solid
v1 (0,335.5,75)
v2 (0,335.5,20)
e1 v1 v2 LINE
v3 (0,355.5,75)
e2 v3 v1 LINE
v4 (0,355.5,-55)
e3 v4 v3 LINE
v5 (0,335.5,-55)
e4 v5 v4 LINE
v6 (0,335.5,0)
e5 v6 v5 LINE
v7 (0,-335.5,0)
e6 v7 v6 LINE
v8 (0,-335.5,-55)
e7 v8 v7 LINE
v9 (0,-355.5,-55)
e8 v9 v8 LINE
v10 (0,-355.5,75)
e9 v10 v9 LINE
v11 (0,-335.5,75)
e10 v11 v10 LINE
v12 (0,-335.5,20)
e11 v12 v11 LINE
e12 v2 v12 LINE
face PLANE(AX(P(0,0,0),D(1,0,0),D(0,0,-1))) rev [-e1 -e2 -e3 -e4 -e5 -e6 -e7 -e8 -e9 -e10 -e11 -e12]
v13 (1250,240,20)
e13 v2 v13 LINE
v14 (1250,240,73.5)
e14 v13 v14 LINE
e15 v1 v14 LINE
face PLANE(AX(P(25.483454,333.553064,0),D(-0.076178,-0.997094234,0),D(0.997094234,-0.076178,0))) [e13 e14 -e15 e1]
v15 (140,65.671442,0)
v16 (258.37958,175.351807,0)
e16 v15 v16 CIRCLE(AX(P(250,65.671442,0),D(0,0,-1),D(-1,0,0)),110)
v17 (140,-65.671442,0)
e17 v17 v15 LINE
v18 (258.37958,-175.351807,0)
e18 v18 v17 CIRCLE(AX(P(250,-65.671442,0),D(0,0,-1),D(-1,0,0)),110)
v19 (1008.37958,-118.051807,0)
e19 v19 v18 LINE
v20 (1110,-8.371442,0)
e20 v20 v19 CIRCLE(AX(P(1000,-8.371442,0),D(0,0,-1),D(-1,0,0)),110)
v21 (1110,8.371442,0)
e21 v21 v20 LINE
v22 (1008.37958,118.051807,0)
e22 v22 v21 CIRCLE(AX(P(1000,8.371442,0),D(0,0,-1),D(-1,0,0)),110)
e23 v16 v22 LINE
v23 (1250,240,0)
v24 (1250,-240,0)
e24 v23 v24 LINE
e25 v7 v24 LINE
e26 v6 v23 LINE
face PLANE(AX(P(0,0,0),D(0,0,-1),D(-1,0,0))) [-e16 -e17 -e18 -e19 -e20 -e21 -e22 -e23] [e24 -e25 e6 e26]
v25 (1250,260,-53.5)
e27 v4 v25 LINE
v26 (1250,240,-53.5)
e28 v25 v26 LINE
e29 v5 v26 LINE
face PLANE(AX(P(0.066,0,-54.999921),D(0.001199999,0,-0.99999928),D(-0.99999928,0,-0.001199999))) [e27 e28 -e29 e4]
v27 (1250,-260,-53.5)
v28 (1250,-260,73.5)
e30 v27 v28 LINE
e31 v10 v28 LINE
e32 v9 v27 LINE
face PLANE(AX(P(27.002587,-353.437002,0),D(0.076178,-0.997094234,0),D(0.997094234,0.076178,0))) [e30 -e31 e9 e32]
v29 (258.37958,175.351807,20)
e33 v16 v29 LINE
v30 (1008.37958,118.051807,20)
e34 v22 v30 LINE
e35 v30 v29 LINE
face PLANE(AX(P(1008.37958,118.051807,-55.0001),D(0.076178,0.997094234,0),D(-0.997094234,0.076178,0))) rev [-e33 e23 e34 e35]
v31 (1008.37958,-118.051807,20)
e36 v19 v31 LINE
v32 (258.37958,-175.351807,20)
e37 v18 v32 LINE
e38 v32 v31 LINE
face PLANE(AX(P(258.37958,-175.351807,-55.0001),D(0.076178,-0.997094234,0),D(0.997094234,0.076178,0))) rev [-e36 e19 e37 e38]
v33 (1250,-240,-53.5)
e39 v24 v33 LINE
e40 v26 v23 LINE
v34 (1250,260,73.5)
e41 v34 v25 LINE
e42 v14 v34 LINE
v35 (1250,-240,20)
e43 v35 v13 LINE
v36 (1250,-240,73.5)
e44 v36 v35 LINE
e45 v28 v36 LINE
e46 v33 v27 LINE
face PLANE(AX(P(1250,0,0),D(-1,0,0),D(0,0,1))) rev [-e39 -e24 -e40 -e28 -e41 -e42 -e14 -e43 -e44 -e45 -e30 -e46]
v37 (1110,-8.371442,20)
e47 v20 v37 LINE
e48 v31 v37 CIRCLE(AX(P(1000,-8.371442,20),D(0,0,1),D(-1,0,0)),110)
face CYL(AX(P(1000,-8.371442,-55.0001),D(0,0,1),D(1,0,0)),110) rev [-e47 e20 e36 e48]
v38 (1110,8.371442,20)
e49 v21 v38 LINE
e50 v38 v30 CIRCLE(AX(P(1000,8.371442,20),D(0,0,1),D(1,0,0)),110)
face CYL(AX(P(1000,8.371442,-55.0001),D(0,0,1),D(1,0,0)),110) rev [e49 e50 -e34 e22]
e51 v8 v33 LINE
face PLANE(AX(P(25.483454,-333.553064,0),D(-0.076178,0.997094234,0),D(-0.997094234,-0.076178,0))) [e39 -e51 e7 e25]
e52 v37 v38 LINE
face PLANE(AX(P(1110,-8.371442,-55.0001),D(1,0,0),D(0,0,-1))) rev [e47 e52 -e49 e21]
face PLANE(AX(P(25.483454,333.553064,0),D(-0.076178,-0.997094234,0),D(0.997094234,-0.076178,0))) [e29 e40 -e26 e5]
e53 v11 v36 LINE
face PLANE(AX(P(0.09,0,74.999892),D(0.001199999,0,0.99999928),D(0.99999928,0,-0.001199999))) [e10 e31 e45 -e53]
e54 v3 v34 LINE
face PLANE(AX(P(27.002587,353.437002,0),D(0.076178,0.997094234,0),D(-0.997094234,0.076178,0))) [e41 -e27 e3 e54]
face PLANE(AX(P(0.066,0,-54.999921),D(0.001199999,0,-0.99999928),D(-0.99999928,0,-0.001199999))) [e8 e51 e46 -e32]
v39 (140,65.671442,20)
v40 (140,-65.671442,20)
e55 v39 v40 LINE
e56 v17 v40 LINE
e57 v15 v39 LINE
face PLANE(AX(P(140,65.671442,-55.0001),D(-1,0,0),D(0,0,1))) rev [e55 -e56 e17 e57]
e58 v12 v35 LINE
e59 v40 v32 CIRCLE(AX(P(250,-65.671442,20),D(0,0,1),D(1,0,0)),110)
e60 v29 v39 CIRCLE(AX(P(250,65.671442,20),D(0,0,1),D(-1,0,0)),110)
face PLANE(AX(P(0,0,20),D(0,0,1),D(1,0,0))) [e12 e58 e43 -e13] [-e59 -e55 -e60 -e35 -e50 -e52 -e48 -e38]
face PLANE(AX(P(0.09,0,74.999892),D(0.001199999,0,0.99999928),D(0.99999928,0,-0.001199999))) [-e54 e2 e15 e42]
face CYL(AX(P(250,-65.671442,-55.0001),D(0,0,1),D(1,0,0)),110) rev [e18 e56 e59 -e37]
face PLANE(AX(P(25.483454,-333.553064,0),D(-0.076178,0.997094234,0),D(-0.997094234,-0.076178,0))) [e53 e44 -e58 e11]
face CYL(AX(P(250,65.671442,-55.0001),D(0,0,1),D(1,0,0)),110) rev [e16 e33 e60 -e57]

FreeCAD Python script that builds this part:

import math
import FreeCAD as App
import Part
import Sketcher

V = App.Vector

doc = App.newDocument("Part")
body = doc.addObject("PartDesign::Body", "Body")

sketch1 = body.newObject("Sketcher::SketchObject", "Sketch")
sketch1.AttachmentSupport = (doc.getObject("YZ_Plane"), [""])
sketch1.MapMode = "FlatFace"
sketch1.addGeometry(Part.LineSegment(V(355.5, -55, 0), V(355.5, 75, 0)), False)
sketch1.addGeometry(Part.LineSegment(V(355.5, 75, 0), V(335.5, 75, 0)), False)
sketch1.addGeometry(Part.LineSegment(V(335.5, 75, 0), V(335.5, 20, 0)), False)
sketch1.addGeometry(Part.LineSegment(V(335.5, 20, 0), V(-335.5, 20, 0)), False)
sketch1.addGeometry(Part.LineSegment(V(-335.5, 20, 0), V(-335.5, 75, 0)), False)
sketch1.addGeometry(Part.LineSegment(V(-335.5, 75, 0), V(-355.5, 75, 0)), False)
sketch1.addGeometry(Part.LineSegment(V(-355.5, 75, 0), V(-355.5, -55, 0)), False)
sketch1.addGeometry(Part.LineSegment(V(-355.5, -55, 0), V(-335.5, -55, 0)), False)
sketch1.addGeometry(Part.LineSegment(V(-335.5, -55, 0), V(-335.5, 0, 0)), False)
sketch1.addGeometry(Part.LineSegment(V(-335.5, 0, 0), V(335.5, 0, 0)), False)
sketch1.addGeometry(Part.LineSegment(V(335.5, 0, 0), V(335.5, -55, 0)), False)
sketch1.addGeometry(Part.LineSegment(V(335.5, -55, 0), V(355.5, -55, 0)), False)
sketch1.addConstraint(Sketcher.Constraint("Coincident", 0, 2, 1, 1))
sketch1.addConstraint(Sketcher.Constraint("Coincident", 1, 2, 2, 1))
sketch1.addConstraint(Sketcher.Constraint("Coincident", 2, 2, 3, 1))
sketch1.addConstraint(Sketcher.Constraint("Coincident", 3, 2, 4, 1))
sketch1.addConstraint(Sketcher.Constraint("Coincident", 4, 2, 5, 1))
sketch1.addConstraint(Sketcher.Constraint("Coincident", 5, 2, 6, 1))
sketch1.addConstraint(Sketcher.Constraint("Coincident", 6, 2, 7, 1))
sketch1.addConstraint(Sketcher.Constraint("Coincident", 7, 2, 8, 1))
sketch1.addConstraint(Sketcher.Constraint("Coincident", 8, 2, 9, 1))
sketch1.addConstraint(Sketcher.Constraint("Coincident", 9, 2, 10, 1))
sketch1.addConstraint(Sketcher.Constraint("Coincident", 10, 2, 11, 1))
sketch1.addConstraint(Sketcher.Constraint("Coincident", 11, 2, 0, 1))
sketch1.addConstraint(Sketcher.Constraint("Vertical", 0))
sketch1.addConstraint(Sketcher.Constraint("Horizontal", 1))
sketch1.addConstraint(Sketcher.Constraint("Vertical", 2))
sketch1.addConstraint(Sketcher.Constraint("Horizontal", 3))
sketch1.addConstraint(Sketcher.Constraint("Vertical", 4))
sketch1.addConstraint(Sketcher.Constraint("Horizontal", 5))
sketch1.addConstraint(Sketcher.Constraint("Vertical", 6))
sketch1.addConstraint(Sketcher.Constraint("Horizontal", 7))
sketch1.addConstraint(Sketcher.Constraint("Vertical", 8))
sketch1.addConstraint(Sketcher.Constraint("Horizontal", 9))
sketch1.addConstraint(Sketcher.Constraint("Vertical", 10))
sketch1.addConstraint(Sketcher.Constraint("Horizontal", 11))
sketch1.addConstraint(Sketcher.Constraint("Symmetric", 8, 2, 9, 2, -1, 1))
sketch1.addConstraint(Sketcher.Constraint("Symmetric", 1, 2, 4, 2, -2))
sketch1.addConstraint(Sketcher.Constraint("Symmetric", 6, 2, 11, 2, -2))
sketch1.addConstraint(Sketcher.Constraint("Vertical", 4, 2, 7, 2))
sketch1.addConstraint(Sketcher.Constraint("Equal", 4, 8))
sketch1.addConstraint(Sketcher.Constraint("DistanceX", 1, 2, 1, 1, 20.0))
sketch1.addConstraint(Sketcher.Constraint("DistanceX", 3, 2, 3, 1, 671.0))
sketch1.addConstraint(Sketcher.Constraint("DistanceY", 0, 1, 0, 2, 130.0))
sketch1.addConstraint(Sketcher.Constraint("DistanceY", 2, 2, 2, 1, 55.0))

sketch2 = body.newObject("Sketcher::SketchObject", "Sketch001")
sketch2.AttachmentSupport = (doc.getObject("YZ_Plane"), [""])
sketch2.MapMode = "FlatFace"
sketch2.AttachmentOffset = App.Placement(V(0, 0, 1250), App.Rotation())
sketch2.addGeometry(Part.LineSegment(V(260, 73.5, 0), V(260, -53.5, 0)), False)
sketch2.addGeometry(Part.LineSegment(V(260, -53.5, 0), V(240, -53.5, 0)), False)
sketch2.addGeometry(Part.LineSegment(V(240, -53.5, 0), V(240, 0, 0)), False)
sketch2.addGeometry(Part.LineSegment(V(240, 0, 0), V(-240, 0, 0)), False)
sketch2.addGeometry(Part.LineSegment(V(-240, 0, 0), V(-240, -53.5, 0)), False)
sketch2.addGeometry(Part.LineSegment(V(-240, -53.5, 0), V(-260, -53.5, 0)), False)
sketch2.addGeometry(Part.LineSegment(V(-260, -53.5, 0), V(-260, 73.5, 0)), False)
sketch2.addGeometry(Part.LineSegment(V(-260, 73.5, 0), V(-240, 73.5, 0)), False)
sketch2.addGeometry(Part.LineSegment(V(-240, 73.5, 0), V(-240, 20, 0)), False)
sketch2.addGeometry(Part.LineSegment(V(-240, 20, 0), V(240, 20, 0)), False)
sketch2.addGeometry(Part.LineSegment(V(240, 20, 0), V(240, 73.5, 0)), False)
sketch2.addGeometry(Part.LineSegment(V(240, 73.5, 0), V(260, 73.5, 0)), False)
sketch2.addConstraint(Sketcher.Constraint("Coincident", 0, 2, 1, 1))
sketch2.addConstraint(Sketcher.Constraint("Coincident", 1, 2, 2, 1))
sketch2.addConstraint(Sketcher.Constraint("Coincident", 2, 2, 3, 1))
sketch2.addConstraint(Sketcher.Constraint("Coincident", 3, 2, 4, 1))
sketch2.addConstraint(Sketcher.Constraint("Coincident", 4, 2, 5, 1))
sketch2.addConstraint(Sketcher.Constraint("Coincident", 5, 2, 6, 1))
sketch2.addConstraint(Sketcher.Constraint("Coincident", 6, 2, 7, 1))
sketch2.addConstraint(Sketcher.Constraint("Coincident", 7, 2, 8, 1))
sketch2.addConstraint(Sketcher.Constraint("Coincident", 8, 2, 9, 1))
sketch2.addConstraint(Sketcher.Constraint("Coincident", 9, 2, 10, 1))
sketch2.addConstraint(Sketcher.Constraint("Coincident", 10, 2, 11, 1))
sketch2.addConstraint(Sketcher.Constraint("Coincident", 11, 2, 0, 1))
sketch2.addConstraint(Sketcher.Constraint("Vertical", 0))
sketch2.addConstraint(Sketcher.Constraint("Horizontal", 1))
sketch2.addConstraint(Sketcher.Constraint("Vertical", 2))
sketch2.addConstraint(Sketcher.Constraint("Horizontal", 3))
sketch2.addConstraint(Sketcher.Constraint("Vertical", 4))
sketch2.addConstraint(Sketcher.Constraint("Horizontal", 5))
sketch2.addConstraint(Sketcher.Constraint("Vertical", 6))
sketch2.addConstraint(Sketcher.Constraint("Horizontal", 7))
sketch2.addConstraint(Sketcher.Constraint("Vertical", 8))
sketch2.addConstraint(Sketcher.Constraint("Horizontal", 9))
sketch2.addConstraint(Sketcher.Constraint("Vertical", 10))
sketch2.addConstraint(Sketcher.Constraint("Horizontal", 11))
sketch2.addConstraint(Sketcher.Constraint("Symmetric", 2, 2, 3, 2, -1, 1))
sketch2.addConstraint(Sketcher.Constraint("Symmetric", 0, 2, 5, 2, -2))
sketch2.addConstraint(Sketcher.Constraint("Symmetric", 7, 2, 10, 2, -2))
sketch2.addConstraint(Sketcher.Constraint("Vertical", 4, 2, 7, 2))
sketch2.addConstraint(Sketcher.Constraint("Equal", 4, 8))
sketch2.addConstraint(Sketcher.Constraint("DistanceX", 1, 2, 1, 1, 20.0))
sketch2.addConstraint(Sketcher.Constraint("DistanceX", 3, 2, 3, 1, 480.0))
sketch2.addConstraint(Sketcher.Constraint("DistanceY", 0, 2, 0, 1, 127.0))
sketch2.addConstraint(Sketcher.Constraint("DistanceY", 2, 1, 2, 2, 53.5))

additiveloft = body.newObject("PartDesign::AdditiveLoft", "AdditiveLoft")
additiveloft.Profile = sketch1
additiveloft.Sections = [sketch2]

sketch3 = body.newObject("Sketcher::SketchObject", "Sketch002")
sketch3.AttachmentSupport = (doc.getObject("XY_Plane"), [""])
sketch3.MapMode = "FlatFace"
sketch3.AttachmentOffset = App.Placement(V(0, 0, 20), App.Rotation())
sketch3.addGeometry(Part.LineSegment(V(258.37958, -175.351807, 0), V(1008.37958, -118.051807, 0)), False)
sketch3.addGeometry(Part.ArcOfCircle(Part.Circle(V(1000, -8.371442, 0), V(0, 0, 1), 110), math.radians(-85.63109), math.radians(0)), False)
sketch3.addGeometry(Part.LineSegment(V(1110, -8.371442, 0), V(1110, 8.371442, 0)), False)
sketch3.addGeometry(Part.ArcOfCircle(Part.Circle(V(1000, 8.371442, 0), V(0, 0, 1), 110), math.radians(0), math.radians(85.63109)), False)
sketch3.addGeometry(Part.LineSegment(V(1008.37958, 118.051807, 0), V(258.37958, 175.351807, 0)), False)
sketch3.addGeometry(Part.ArcOfCircle(Part.Circle(V(250, 65.671442, 0), V(0, 0, 1), 110), math.radians(85.63109), math.radians(180)), False)
sketch3.addGeometry(Part.LineSegment(V(140, 65.671442, 0), V(140, -65.671442, 0)), False)
sketch3.addGeometry(Part.ArcOfCircle(Part.Circle(V(250, -65.671442, 0), V(0, 0, 1), 110), math.radians(180), math.radians(274.36891)), False)
sketch3.addConstraint(Sketcher.Constraint("Tangent", 0, 2, 1, 1))
sketch3.addConstraint(Sketcher.Constraint("Tangent", 1, 2, 2, 1))
sketch3.addConstraint(Sketcher.Constraint("Tangent", 2, 2, 3, 1))
sketch3.addConstraint(Sketcher.Constraint("Tangent", 3, 2, 4, 1))
sketch3.addConstraint(Sketcher.Constraint("Tangent", 4, 2, 5, 1))
sketch3.addConstraint(Sketcher.Constraint("Tangent", 5, 2, 6, 1))
sketch3.addConstraint(Sketcher.Constraint("Tangent", 6, 2, 7, 1))
sketch3.addConstraint(Sketcher.Constraint("Tangent", 7, 2, 0, 1))
sketch3.addConstraint(Sketcher.Constraint("Vertical", 2))
sketch3.addConstraint(Sketcher.Constraint("Vertical", 6))
sketch3.addConstraint(Sketcher.Constraint("Equal", 1, 3))
sketch3.addConstraint(Sketcher.Constraint("Equal", 3, 5))
sketch3.addConstraint(Sketcher.Constraint("Equal", 5, 7))
sketch3.addConstraint(Sketcher.Constraint("Equal", 0, 4))
sketch3.addConstraint(Sketcher.Constraint("Radius", 1, 110.0))
sketch3.addConstraint(Sketcher.Constraint("DistanceX", -1, 1, 1, 3, 1000.0))
sketch3.addConstraint(Sketcher.Constraint("DistanceX", -1, 1, 5, 3, 250.0))
sketch3.addConstraint(Sketcher.Constraint("DistanceY", 3, 3, 5, 3, 57.3))
sketch3.addConstraint(Sketcher.Constraint("DistanceY", 2, 1, 2, 2, 16.742883))
sketch3.addConstraint(Sketcher.Constraint("DistanceY", 1, 3, -1, 1, 8.371442))
pocket1 = body.newObject("PartDesign::Pocket", "Pocket")
pocket1.Profile = sketch3
pocket1.Type = "ThroughAll"

doc.recompute()
